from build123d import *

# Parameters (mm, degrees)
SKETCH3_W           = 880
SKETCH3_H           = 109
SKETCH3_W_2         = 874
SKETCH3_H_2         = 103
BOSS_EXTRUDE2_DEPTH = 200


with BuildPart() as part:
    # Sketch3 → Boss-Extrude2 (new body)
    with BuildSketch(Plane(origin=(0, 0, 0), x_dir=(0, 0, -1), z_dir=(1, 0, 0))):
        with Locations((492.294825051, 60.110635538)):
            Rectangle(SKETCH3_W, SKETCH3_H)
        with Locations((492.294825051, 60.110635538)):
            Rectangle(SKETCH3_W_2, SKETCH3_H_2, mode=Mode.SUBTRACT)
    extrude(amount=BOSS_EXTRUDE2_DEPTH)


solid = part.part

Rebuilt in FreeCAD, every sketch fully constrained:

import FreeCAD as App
import Part
import Sketcher
from FreeCAD import Vector
Q = App.Units.Quantity


def add_polygon(sketch, points):
    """Adds a closed chain of lines whose ends are joined by coincident constraints."""
    first, n = sketch.GeometryCount, len(points)
    for a, b in zip(points, points[1:] + points[:1]):
        sketch.addGeometry(Part.LineSegment(App.Vector(*a, 0), App.Vector(*b, 0)), False)
    for i in range(n):
        sketch.addConstraint(Sketcher.Constraint("Coincident", first + i, 2, first + (i + 1) % n, 1))

doc = App.newDocument("Part")
body = doc.addObject("PartDesign::Body", "Body")

sketch1 = doc.addObject("Sketcher::SketchObject", "Sketch")
body.addObject(sketch1)
sketch1.AttachmentSupport = (doc.YZ_Plane, [""])
sketch1.MapMode = "FlatFace"
add_polygon(sketch1, [(115, -52), (6, -52), (6, -932), (115, -932)])
add_polygon(sketch1, [(9, -929), (9, -55), (112, -55), (112, -929)])
sketch1.addConstraint([
    Sketcher.Constraint("Horizontal", 0),
    Sketcher.Constraint("Vertical", 1),
    Sketcher.Constraint("Horizontal", 2),
    Sketcher.Constraint("Vertical", 3),
    Sketcher.Constraint("Vertical", 4),
    Sketcher.Constraint("Horizontal", 5),
    Sketcher.Constraint("Vertical", 6),
    Sketcher.Constraint("Horizontal", 7),
    Sketcher.Constraint("DistanceX", 0, 2, 0, 1, Q("109 mm")),
    Sketcher.Constraint("DistanceX", 5, 1, 5, 2, Q("103 mm")),
    Sketcher.Constraint("DistanceY", 1, 2, 1, 1, Q("880 mm")),
    Sketcher.Constraint("DistanceY", 4, 1, 4, 2, Q("874 mm")),
    Sketcher.Constraint("DistanceX", 0, 2, 4, 2, Q("3 mm")),
    Sketcher.Constraint("DistanceY", 4, 2, 0, 2, Q("3 mm")),
    Sketcher.Constraint("DistanceX", -1, 1, 0, 2, Q("5.610636 mm")),
    Sketcher.Constraint("DistanceY", 0, 2, -1, 1, Q("52.294825 mm")),
])
pad1 = doc.addObject("PartDesign::Pad", "Pad")
body.addObject(pad1)
pad1.Profile = sketch1
pad1.Length = 200

doc.recompute()
